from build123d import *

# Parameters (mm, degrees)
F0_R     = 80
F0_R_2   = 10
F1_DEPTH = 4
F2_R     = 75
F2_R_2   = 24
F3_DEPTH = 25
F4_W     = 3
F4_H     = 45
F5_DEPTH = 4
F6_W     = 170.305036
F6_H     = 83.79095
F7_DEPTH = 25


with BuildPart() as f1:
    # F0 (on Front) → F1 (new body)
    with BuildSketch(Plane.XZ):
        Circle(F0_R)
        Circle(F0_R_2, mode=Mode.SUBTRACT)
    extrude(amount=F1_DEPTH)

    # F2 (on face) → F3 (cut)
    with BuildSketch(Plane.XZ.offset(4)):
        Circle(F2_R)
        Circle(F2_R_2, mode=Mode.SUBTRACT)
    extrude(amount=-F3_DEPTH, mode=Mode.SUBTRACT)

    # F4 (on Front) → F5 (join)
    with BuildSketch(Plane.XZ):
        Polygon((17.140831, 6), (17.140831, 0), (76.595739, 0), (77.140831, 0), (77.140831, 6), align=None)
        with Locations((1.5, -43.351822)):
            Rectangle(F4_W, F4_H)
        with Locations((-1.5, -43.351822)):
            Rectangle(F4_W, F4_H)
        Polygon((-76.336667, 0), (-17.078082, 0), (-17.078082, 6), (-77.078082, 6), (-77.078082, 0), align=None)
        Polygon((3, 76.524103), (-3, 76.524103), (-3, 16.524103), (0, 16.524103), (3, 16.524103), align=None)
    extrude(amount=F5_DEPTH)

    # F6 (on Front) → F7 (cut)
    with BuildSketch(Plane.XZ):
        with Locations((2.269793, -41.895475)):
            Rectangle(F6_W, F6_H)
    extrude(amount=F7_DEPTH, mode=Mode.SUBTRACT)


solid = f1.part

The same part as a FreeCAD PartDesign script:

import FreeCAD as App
import Part
import Sketcher

V = App.Vector
Q = App.Units.Quantity


def add_polygon(sketch, points):
    """Adds a closed chain of lines whose ends are joined by coincident constraints."""
    first, n = sketch.GeometryCount, len(points)
    for a, b in zip(points, points[1:] + points[:1]):
        sketch.addGeometry(Part.LineSegment(App.Vector(*a, 0), App.Vector(*b, 0)), False)
    for i in range(n):
        sketch.addConstraint(Sketcher.Constraint("Coincident", first + i, 2, first + (i + 1) % n, 1))

doc = App.newDocument("Part")
body = doc.addObject("PartDesign::Body", "Body")
body.AllowCompound = True

sketch1 = body.newObject("Sketcher::SketchObject", "Sketch")
sketch1.AttachmentSupport = (doc.getObject("XZ_Plane"), [""])
sketch1.MapMode = "FlatFace"
sketch1.addGeometry([
    Part.Circle(V(0, 0, 0), V(0, 0, 1), 80),
    Part.Circle(V(0, 0, 0), V(0, 0, 1), 10),
], False)
sketch1.addConstraint([
    Sketcher.Constraint("Coincident", 0, 3, -1, 1),
    Sketcher.Constraint("Coincident", 1, 3, -1, 1),
    Sketcher.Constraint("Diameter", 0, Q("160 mm")),
    Sketcher.Constraint("Diameter", 1, Q("20 mm")),
])
pad1 = body.newObject("PartDesign::Pad", "Pad")
pad1.Profile = sketch1
pad1.Length = 4

sketch2 = body.newObject("Sketcher::SketchObject", "Sketch001")
sketch2.AttachmentSupport = (doc.getObject("XZ_Plane"), [""])
sketch2.MapMode = "FlatFace"
sketch2.AttachmentOffset = App.Placement(V(0, 0, 4), App.Rotation())
sketch2.addGeometry([
    Part.Circle(V(0, 0, 0), V(0, 0, 1), 75),
    Part.Circle(V(0, 0, 0), V(0, 0, 1), 24),
], False)
sketch2.addConstraint([
    Sketcher.Constraint("Coincident", 0, 3, -1, 1),
    Sketcher.Constraint("Coincident", 1, 3, -1, 1),
    Sketcher.Constraint("Diameter", 0, Q("150 mm")),
    Sketcher.Constraint("Diameter", 1, Q("48 mm")),
])
pocket1 = body.newObject("PartDesign::Pocket", "Pocket")
pocket1.Profile = sketch2
pocket1.Length = 25

sketch3 = body.newObject("Sketcher::SketchObject", "Sketch002")
sketch3.AttachmentSupport = (doc.getObject("XZ_Plane"), [""])
sketch3.MapMode = "FlatFace"
add_polygon(sketch3, [(17, 6), (17, 0), (77, 0), (77, 6)])
add_polygon(sketch3, [(3, -66), (3, -21), (-3, -21), (-3, -66)])
add_polygon(sketch3, [(-17, 0), (-17, 6), (-77, 6), (-77, 0)])
add_polygon(sketch3, [(3, 77), (-3, 77), (-3, 17), (3, 17)])
sketch3.addConstraint([
    Sketcher.Constraint("Vertical", 0),
    Sketcher.Constraint("Horizontal", 1),
    Sketcher.Constraint("Vertical", 2),
    Sketcher.Constraint("Horizontal", 3),
    Sketcher.Constraint("Vertical", 4),
    Sketcher.Constraint("Horizontal", 5),
    Sketcher.Constraint("Vertical", 6),
    Sketcher.Constraint("Horizontal", 7),
    Sketcher.Constraint("Vertical", 8),
    Sketcher.Constraint("Horizontal", 9),
    Sketcher.Constraint("Vertical", 10),
    Sketcher.Constraint("Horizontal", 11),
    Sketcher.Constraint("Horizontal", 12),
    Sketcher.Constraint("Vertical", 13),
    Sketcher.Constraint("Horizontal", 14),
    Sketcher.Constraint("Vertical", 15),
    Sketcher.Constraint("PointOnObject", 0, 2, -1),
    Sketcher.Constraint("PointOnObject", 10, 2, -1),
    Sketcher.Constraint("Horizontal", 3, 2, 8, 2),
    Sketcher.Constraint("Vertical", 6, 2, 12, 2),
    Sketcher.Constraint("Vertical", 7, 2, 14, 2),
    Sketcher.Constraint("Equal", 3, 9),
    Sketcher.Constraint("Equal", 14, 0),
    Sketcher.Constraint("Equal", 11, 13),
    Sketcher.Constraint("DistanceX", 1, 1, 1, 2, Q("60 mm")),
    Sketcher.Constraint("DistanceX", 5, 2, 5, 1, Q("6 mm")),
    Sketcher.Constraint("DistanceY", 4, 1, 4, 2, Q("45 mm")),
    Sketcher.Constraint("DistanceX", -1, 1, 4, 2, Q("3 mm")),
    Sketcher.Constraint("DistanceX", -1, 1, 0, 2, Q("17.140831 mm")),
    Sketcher.Constraint("DistanceY", 4, 2, -1, 1, Q("20.851822 mm")),
    Sketcher.Constraint("DistanceX", 8, 2, -1, 1, Q("17.078082 mm")),
    Sketcher.Constraint("DistanceY", -1, 1, 12, 2, Q("76.524103 mm")),
])
pad2 = body.newObject("PartDesign::Pad", "Pad001")
pad2.Profile = sketch3
pad2.Length = 4

sketch4 = body.newObject("Sketcher::SketchObject", "Sketch003")
sketch4.AttachmentSupport = (doc.getObject("XZ_Plane"), [""])
sketch4.MapMode = "FlatFace"
add_polygon(sketch4, [(-83, 0), (-83, -84), (87, -84), (87, 0)])
sketch4.addConstraint([
    Sketcher.Constraint("Vertical", 0),
    Sketcher.Constraint("Horizontal", 1),
    Sketcher.Constraint("Vertical", 2),
    Sketcher.Constraint("Horizontal", 3),
    Sketcher.Constraint("PointOnObject", 2, 2, -1),
    Sketcher.Constraint("DistanceY", 0, 2, 0, 1, Q("83.79095 mm")),
    Sketcher.Constraint("DistanceX", 1, 1, 1, 2, Q("170.305036 mm")),
    Sketcher.Constraint("DistanceX", -1, 1, 1, 2, Q("87.422311 mm")),
])
pocket2 = body.newObject("PartDesign::Pocket", "Pocket001")
pocket2.Profile = sketch4
pocket2.Length = 25
pocket2.Reversed = True

doc.recompute()
